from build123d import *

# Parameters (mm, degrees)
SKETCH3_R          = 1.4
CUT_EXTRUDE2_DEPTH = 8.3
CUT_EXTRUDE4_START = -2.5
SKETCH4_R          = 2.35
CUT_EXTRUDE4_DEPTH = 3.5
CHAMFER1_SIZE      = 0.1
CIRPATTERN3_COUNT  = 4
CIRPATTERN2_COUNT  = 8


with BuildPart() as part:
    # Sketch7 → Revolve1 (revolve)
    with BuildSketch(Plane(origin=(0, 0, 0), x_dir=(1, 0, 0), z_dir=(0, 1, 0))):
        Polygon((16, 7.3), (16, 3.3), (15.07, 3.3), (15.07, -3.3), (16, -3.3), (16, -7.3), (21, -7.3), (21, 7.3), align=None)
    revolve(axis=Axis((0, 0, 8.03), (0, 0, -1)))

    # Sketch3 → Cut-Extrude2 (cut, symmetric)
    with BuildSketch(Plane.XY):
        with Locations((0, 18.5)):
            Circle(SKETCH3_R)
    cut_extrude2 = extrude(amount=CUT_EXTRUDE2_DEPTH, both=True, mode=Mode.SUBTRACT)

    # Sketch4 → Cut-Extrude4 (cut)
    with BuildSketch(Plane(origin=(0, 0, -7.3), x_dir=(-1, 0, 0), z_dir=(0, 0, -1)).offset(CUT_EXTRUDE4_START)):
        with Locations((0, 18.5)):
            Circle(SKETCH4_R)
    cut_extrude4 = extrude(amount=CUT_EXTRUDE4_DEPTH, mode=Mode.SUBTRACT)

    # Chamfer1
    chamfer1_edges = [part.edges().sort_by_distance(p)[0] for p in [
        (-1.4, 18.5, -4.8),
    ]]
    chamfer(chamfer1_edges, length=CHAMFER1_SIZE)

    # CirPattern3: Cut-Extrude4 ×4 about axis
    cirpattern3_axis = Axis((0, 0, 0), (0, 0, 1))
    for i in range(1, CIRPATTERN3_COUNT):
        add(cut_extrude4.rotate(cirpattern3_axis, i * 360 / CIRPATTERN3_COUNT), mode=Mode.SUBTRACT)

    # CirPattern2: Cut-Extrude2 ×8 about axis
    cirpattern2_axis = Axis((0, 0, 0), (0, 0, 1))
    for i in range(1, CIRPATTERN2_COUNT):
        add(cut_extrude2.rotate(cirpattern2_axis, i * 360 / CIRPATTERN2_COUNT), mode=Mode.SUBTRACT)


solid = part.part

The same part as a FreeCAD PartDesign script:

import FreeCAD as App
import Part
import Sketcher
from FreeCAD import Vector


def edges_at(feature, points):
    """Names of the edges that pass closest to the given points."""
    edges = feature.Shape.Edges
    near = lambda p: min(range(len(edges)), key=lambda i: edges[i].distToShape(Part.Vertex(*p))[0])
    return sorted({f"Edge{near(p) + 1}" for p in points})


def add_polygon(sketch, points):
    """Adds a closed chain of lines whose ends are joined by coincident constraints."""
    first, n = sketch.GeometryCount, len(points)
    for a, b in zip(points, points[1:] + points[:1]):
        sketch.addGeometry(Part.LineSegment(App.Vector(*a, 0), App.Vector(*b, 0)), False)
    for i in range(n):
        sketch.addConstraint(Sketcher.Constraint("Coincident", first + i, 2, first + (i + 1) % n, 1))

doc = App.newDocument("Part")
params = doc.addObject("Spreadsheet::Sheet", "Params")
for row, (alias, value) in enumerate([
    ("sketch1_width", "5 mm"),
    ("sketch1_height", "4 mm"),
    ("sketch1_height2", "6.6 mm"),
    ("sketch1_width2", "0.93 mm"),
    ("revolution_angle", "360 deg"),
    ("sketch2_diameter", "2.8 mm"),
    ("pocket1_length", "16.6 mm"),
    ("sketch3_diameter", "4.7 mm"),
    ("pocket2_length", "3.5 mm"),
    ("chamfer_size", "0.1 mm"),
], start=1):
    params.set(f"A{row}", alias)
    params.set(f"B{row}", "=" + value)
    params.setAlias(f"B{row}", alias)

body = doc.addObject("PartDesign::Body", "Body")

# Sketch on XZ plane
sketch1 = body.newObject("Sketcher::SketchObject", "Sketch")
sketch1.AttachmentSupport = (doc.getObject("XZ_Plane"), [""])
sketch1.MapMode = "FlatFace"
add_polygon(sketch1, [(16, -7.3), (16, -3.3), (15.1, -3.3), (15.1, 3.3), (16, 3.3), (16, 7.3), (21, 7.3), (21, -7.3)])  # lines 0-7
sketch1.addConstraint(Sketcher.Constraint("Vertical", 0))
sketch1.addConstraint(Sketcher.Constraint("Horizontal", 1))
sketch1.addConstraint(Sketcher.Constraint("Vertical", 2))
sketch1.addConstraint(Sketcher.Constraint("Horizontal", 3))
sketch1.addConstraint(Sketcher.Constraint("Vertical", 4))
sketch1.addConstraint(Sketcher.Constraint("Horizontal", 5))
sketch1.addConstraint(Sketcher.Constraint("Vertical", 6))
sketch1.addConstraint(Sketcher.Constraint("Horizontal", 7))
sketch1.addConstraint(Sketcher.Constraint("Symmetric", 0, 2, 3, 2, -1))
sketch1.addConstraint(Sketcher.Constraint("Equal", 0, 4))
sketch1.addConstraint(Sketcher.Constraint("DistanceX", 5, 1, 5, 2, 5.0))
sketch1.addConstraint(Sketcher.Constraint("DistanceY", 0, 1, 0, 2, 4.0))
sketch1.addConstraint(Sketcher.Constraint("DistanceY", 2, 1, 2, 2, 6.6))
sketch1.addConstraint(Sketcher.Constraint("DistanceX", -1, 1, 0, 2, 16.0))
sketch1.addConstraint(Sketcher.Constraint("DistanceX", 1, 2, 1, 1, 0.93))
sketch1.setExpression("Constraints[18]", "Params.sketch1_width")
sketch1.setExpression("Constraints[19]", "Params.sketch1_height")
sketch1.setExpression("Constraints[20]", "Params.sketch1_height2")
sketch1.setExpression("Constraints[22]", "Params.sketch1_width2")
revolution = body.newObject("PartDesign::Revolution", "Revolution")
revolution.Profile = sketch1
revolution.ReferenceAxis = (sketch1, ["V_Axis"])
revolution.setExpression("Angle", "Params.revolution_angle")

# Sketch on XY plane
sketch2 = body.newObject("Sketcher::SketchObject", "Sketch001")
sketch2.AttachmentSupport = (doc.getObject("XY_Plane"), [""])
sketch2.MapMode = "FlatFace"
sketch2.addGeometry(Part.Circle(Vector(0, 18.5, 0), Vector(0, 0, 1), 1.4), False)
sketch2.addConstraint(Sketcher.Constraint("PointOnObject", 0, 3, -2))
sketch2.addConstraint(Sketcher.Constraint("Diameter", 0, 2.8))
sketch2.addConstraint(Sketcher.Constraint("DistanceY", -1, 1, 0, 3, 18.5))
sketch2.setExpression("Constraints[1]", "Params.sketch2_diameter")
pocket1 = body.newObject("PartDesign::Pocket", "Pocket")
pocket1.Profile = sketch2
pocket1.setExpression("Length", "Params.pocket1_length")
pocket1.Midplane = True

# Sketch on XY plane
sketch3 = body.newObject("Sketcher::SketchObject", "Sketch002")
sketch3.AttachmentSupport = (doc.getObject("XY_Plane"), [""])
sketch3.MapMode = "FlatFace"
sketch3.AttachmentOffset = App.Placement(Vector(0, 0, -4.8), App.Rotation())
sketch3.addGeometry(Part.Circle(Vector(0, 18.5, 0), Vector(0, 0, 1), 2.4), False)
sketch3.addConstraint(Sketcher.Constraint("PointOnObject", 0, 3, -2))
sketch3.addConstraint(Sketcher.Constraint("Diameter", 0, 4.7))
sketch3.addConstraint(Sketcher.Constraint("DistanceY", -1, 1, 0, 3, 18.5))
sketch3.setExpression("Constraints[1]", "Params.sketch3_diameter")
pocket2 = body.newObject("PartDesign::Pocket", "Pocket001")
pocket2.Profile = sketch3
pocket2.setExpression("Length", "Params.pocket2_length")
doc.recompute()

chamfer = body.newObject("PartDesign::Chamfer", "Chamfer")
chamfer.Base = (pocket2, edges_at(pocket2, [(-1.4, 18.5, -4.8)]))
chamfer.setExpression("Size", "Params.chamfer_size")
doc.recompute()

polarpattern = body.newObject("PartDesign::PolarPattern", "PolarPattern")
polarpattern.Originals = [pocket2]
polarpattern.Axis = (doc.getObject("Z_Axis"), [""])
polarpattern.Angle = 360
polarpattern.Occurrences = 4
body.Tip = polarpattern
doc.recompute()

polarpattern2 = body.newObject("PartDesign::PolarPattern", "PolarPattern001")
polarpattern2.Originals = [pocket1]
polarpattern2.Axis = (doc.getObject("Z_Axis"), [""])
polarpattern2.Angle = 360
polarpattern2.Occurrences = 8
body.Tip = polarpattern2

doc.recompute()
